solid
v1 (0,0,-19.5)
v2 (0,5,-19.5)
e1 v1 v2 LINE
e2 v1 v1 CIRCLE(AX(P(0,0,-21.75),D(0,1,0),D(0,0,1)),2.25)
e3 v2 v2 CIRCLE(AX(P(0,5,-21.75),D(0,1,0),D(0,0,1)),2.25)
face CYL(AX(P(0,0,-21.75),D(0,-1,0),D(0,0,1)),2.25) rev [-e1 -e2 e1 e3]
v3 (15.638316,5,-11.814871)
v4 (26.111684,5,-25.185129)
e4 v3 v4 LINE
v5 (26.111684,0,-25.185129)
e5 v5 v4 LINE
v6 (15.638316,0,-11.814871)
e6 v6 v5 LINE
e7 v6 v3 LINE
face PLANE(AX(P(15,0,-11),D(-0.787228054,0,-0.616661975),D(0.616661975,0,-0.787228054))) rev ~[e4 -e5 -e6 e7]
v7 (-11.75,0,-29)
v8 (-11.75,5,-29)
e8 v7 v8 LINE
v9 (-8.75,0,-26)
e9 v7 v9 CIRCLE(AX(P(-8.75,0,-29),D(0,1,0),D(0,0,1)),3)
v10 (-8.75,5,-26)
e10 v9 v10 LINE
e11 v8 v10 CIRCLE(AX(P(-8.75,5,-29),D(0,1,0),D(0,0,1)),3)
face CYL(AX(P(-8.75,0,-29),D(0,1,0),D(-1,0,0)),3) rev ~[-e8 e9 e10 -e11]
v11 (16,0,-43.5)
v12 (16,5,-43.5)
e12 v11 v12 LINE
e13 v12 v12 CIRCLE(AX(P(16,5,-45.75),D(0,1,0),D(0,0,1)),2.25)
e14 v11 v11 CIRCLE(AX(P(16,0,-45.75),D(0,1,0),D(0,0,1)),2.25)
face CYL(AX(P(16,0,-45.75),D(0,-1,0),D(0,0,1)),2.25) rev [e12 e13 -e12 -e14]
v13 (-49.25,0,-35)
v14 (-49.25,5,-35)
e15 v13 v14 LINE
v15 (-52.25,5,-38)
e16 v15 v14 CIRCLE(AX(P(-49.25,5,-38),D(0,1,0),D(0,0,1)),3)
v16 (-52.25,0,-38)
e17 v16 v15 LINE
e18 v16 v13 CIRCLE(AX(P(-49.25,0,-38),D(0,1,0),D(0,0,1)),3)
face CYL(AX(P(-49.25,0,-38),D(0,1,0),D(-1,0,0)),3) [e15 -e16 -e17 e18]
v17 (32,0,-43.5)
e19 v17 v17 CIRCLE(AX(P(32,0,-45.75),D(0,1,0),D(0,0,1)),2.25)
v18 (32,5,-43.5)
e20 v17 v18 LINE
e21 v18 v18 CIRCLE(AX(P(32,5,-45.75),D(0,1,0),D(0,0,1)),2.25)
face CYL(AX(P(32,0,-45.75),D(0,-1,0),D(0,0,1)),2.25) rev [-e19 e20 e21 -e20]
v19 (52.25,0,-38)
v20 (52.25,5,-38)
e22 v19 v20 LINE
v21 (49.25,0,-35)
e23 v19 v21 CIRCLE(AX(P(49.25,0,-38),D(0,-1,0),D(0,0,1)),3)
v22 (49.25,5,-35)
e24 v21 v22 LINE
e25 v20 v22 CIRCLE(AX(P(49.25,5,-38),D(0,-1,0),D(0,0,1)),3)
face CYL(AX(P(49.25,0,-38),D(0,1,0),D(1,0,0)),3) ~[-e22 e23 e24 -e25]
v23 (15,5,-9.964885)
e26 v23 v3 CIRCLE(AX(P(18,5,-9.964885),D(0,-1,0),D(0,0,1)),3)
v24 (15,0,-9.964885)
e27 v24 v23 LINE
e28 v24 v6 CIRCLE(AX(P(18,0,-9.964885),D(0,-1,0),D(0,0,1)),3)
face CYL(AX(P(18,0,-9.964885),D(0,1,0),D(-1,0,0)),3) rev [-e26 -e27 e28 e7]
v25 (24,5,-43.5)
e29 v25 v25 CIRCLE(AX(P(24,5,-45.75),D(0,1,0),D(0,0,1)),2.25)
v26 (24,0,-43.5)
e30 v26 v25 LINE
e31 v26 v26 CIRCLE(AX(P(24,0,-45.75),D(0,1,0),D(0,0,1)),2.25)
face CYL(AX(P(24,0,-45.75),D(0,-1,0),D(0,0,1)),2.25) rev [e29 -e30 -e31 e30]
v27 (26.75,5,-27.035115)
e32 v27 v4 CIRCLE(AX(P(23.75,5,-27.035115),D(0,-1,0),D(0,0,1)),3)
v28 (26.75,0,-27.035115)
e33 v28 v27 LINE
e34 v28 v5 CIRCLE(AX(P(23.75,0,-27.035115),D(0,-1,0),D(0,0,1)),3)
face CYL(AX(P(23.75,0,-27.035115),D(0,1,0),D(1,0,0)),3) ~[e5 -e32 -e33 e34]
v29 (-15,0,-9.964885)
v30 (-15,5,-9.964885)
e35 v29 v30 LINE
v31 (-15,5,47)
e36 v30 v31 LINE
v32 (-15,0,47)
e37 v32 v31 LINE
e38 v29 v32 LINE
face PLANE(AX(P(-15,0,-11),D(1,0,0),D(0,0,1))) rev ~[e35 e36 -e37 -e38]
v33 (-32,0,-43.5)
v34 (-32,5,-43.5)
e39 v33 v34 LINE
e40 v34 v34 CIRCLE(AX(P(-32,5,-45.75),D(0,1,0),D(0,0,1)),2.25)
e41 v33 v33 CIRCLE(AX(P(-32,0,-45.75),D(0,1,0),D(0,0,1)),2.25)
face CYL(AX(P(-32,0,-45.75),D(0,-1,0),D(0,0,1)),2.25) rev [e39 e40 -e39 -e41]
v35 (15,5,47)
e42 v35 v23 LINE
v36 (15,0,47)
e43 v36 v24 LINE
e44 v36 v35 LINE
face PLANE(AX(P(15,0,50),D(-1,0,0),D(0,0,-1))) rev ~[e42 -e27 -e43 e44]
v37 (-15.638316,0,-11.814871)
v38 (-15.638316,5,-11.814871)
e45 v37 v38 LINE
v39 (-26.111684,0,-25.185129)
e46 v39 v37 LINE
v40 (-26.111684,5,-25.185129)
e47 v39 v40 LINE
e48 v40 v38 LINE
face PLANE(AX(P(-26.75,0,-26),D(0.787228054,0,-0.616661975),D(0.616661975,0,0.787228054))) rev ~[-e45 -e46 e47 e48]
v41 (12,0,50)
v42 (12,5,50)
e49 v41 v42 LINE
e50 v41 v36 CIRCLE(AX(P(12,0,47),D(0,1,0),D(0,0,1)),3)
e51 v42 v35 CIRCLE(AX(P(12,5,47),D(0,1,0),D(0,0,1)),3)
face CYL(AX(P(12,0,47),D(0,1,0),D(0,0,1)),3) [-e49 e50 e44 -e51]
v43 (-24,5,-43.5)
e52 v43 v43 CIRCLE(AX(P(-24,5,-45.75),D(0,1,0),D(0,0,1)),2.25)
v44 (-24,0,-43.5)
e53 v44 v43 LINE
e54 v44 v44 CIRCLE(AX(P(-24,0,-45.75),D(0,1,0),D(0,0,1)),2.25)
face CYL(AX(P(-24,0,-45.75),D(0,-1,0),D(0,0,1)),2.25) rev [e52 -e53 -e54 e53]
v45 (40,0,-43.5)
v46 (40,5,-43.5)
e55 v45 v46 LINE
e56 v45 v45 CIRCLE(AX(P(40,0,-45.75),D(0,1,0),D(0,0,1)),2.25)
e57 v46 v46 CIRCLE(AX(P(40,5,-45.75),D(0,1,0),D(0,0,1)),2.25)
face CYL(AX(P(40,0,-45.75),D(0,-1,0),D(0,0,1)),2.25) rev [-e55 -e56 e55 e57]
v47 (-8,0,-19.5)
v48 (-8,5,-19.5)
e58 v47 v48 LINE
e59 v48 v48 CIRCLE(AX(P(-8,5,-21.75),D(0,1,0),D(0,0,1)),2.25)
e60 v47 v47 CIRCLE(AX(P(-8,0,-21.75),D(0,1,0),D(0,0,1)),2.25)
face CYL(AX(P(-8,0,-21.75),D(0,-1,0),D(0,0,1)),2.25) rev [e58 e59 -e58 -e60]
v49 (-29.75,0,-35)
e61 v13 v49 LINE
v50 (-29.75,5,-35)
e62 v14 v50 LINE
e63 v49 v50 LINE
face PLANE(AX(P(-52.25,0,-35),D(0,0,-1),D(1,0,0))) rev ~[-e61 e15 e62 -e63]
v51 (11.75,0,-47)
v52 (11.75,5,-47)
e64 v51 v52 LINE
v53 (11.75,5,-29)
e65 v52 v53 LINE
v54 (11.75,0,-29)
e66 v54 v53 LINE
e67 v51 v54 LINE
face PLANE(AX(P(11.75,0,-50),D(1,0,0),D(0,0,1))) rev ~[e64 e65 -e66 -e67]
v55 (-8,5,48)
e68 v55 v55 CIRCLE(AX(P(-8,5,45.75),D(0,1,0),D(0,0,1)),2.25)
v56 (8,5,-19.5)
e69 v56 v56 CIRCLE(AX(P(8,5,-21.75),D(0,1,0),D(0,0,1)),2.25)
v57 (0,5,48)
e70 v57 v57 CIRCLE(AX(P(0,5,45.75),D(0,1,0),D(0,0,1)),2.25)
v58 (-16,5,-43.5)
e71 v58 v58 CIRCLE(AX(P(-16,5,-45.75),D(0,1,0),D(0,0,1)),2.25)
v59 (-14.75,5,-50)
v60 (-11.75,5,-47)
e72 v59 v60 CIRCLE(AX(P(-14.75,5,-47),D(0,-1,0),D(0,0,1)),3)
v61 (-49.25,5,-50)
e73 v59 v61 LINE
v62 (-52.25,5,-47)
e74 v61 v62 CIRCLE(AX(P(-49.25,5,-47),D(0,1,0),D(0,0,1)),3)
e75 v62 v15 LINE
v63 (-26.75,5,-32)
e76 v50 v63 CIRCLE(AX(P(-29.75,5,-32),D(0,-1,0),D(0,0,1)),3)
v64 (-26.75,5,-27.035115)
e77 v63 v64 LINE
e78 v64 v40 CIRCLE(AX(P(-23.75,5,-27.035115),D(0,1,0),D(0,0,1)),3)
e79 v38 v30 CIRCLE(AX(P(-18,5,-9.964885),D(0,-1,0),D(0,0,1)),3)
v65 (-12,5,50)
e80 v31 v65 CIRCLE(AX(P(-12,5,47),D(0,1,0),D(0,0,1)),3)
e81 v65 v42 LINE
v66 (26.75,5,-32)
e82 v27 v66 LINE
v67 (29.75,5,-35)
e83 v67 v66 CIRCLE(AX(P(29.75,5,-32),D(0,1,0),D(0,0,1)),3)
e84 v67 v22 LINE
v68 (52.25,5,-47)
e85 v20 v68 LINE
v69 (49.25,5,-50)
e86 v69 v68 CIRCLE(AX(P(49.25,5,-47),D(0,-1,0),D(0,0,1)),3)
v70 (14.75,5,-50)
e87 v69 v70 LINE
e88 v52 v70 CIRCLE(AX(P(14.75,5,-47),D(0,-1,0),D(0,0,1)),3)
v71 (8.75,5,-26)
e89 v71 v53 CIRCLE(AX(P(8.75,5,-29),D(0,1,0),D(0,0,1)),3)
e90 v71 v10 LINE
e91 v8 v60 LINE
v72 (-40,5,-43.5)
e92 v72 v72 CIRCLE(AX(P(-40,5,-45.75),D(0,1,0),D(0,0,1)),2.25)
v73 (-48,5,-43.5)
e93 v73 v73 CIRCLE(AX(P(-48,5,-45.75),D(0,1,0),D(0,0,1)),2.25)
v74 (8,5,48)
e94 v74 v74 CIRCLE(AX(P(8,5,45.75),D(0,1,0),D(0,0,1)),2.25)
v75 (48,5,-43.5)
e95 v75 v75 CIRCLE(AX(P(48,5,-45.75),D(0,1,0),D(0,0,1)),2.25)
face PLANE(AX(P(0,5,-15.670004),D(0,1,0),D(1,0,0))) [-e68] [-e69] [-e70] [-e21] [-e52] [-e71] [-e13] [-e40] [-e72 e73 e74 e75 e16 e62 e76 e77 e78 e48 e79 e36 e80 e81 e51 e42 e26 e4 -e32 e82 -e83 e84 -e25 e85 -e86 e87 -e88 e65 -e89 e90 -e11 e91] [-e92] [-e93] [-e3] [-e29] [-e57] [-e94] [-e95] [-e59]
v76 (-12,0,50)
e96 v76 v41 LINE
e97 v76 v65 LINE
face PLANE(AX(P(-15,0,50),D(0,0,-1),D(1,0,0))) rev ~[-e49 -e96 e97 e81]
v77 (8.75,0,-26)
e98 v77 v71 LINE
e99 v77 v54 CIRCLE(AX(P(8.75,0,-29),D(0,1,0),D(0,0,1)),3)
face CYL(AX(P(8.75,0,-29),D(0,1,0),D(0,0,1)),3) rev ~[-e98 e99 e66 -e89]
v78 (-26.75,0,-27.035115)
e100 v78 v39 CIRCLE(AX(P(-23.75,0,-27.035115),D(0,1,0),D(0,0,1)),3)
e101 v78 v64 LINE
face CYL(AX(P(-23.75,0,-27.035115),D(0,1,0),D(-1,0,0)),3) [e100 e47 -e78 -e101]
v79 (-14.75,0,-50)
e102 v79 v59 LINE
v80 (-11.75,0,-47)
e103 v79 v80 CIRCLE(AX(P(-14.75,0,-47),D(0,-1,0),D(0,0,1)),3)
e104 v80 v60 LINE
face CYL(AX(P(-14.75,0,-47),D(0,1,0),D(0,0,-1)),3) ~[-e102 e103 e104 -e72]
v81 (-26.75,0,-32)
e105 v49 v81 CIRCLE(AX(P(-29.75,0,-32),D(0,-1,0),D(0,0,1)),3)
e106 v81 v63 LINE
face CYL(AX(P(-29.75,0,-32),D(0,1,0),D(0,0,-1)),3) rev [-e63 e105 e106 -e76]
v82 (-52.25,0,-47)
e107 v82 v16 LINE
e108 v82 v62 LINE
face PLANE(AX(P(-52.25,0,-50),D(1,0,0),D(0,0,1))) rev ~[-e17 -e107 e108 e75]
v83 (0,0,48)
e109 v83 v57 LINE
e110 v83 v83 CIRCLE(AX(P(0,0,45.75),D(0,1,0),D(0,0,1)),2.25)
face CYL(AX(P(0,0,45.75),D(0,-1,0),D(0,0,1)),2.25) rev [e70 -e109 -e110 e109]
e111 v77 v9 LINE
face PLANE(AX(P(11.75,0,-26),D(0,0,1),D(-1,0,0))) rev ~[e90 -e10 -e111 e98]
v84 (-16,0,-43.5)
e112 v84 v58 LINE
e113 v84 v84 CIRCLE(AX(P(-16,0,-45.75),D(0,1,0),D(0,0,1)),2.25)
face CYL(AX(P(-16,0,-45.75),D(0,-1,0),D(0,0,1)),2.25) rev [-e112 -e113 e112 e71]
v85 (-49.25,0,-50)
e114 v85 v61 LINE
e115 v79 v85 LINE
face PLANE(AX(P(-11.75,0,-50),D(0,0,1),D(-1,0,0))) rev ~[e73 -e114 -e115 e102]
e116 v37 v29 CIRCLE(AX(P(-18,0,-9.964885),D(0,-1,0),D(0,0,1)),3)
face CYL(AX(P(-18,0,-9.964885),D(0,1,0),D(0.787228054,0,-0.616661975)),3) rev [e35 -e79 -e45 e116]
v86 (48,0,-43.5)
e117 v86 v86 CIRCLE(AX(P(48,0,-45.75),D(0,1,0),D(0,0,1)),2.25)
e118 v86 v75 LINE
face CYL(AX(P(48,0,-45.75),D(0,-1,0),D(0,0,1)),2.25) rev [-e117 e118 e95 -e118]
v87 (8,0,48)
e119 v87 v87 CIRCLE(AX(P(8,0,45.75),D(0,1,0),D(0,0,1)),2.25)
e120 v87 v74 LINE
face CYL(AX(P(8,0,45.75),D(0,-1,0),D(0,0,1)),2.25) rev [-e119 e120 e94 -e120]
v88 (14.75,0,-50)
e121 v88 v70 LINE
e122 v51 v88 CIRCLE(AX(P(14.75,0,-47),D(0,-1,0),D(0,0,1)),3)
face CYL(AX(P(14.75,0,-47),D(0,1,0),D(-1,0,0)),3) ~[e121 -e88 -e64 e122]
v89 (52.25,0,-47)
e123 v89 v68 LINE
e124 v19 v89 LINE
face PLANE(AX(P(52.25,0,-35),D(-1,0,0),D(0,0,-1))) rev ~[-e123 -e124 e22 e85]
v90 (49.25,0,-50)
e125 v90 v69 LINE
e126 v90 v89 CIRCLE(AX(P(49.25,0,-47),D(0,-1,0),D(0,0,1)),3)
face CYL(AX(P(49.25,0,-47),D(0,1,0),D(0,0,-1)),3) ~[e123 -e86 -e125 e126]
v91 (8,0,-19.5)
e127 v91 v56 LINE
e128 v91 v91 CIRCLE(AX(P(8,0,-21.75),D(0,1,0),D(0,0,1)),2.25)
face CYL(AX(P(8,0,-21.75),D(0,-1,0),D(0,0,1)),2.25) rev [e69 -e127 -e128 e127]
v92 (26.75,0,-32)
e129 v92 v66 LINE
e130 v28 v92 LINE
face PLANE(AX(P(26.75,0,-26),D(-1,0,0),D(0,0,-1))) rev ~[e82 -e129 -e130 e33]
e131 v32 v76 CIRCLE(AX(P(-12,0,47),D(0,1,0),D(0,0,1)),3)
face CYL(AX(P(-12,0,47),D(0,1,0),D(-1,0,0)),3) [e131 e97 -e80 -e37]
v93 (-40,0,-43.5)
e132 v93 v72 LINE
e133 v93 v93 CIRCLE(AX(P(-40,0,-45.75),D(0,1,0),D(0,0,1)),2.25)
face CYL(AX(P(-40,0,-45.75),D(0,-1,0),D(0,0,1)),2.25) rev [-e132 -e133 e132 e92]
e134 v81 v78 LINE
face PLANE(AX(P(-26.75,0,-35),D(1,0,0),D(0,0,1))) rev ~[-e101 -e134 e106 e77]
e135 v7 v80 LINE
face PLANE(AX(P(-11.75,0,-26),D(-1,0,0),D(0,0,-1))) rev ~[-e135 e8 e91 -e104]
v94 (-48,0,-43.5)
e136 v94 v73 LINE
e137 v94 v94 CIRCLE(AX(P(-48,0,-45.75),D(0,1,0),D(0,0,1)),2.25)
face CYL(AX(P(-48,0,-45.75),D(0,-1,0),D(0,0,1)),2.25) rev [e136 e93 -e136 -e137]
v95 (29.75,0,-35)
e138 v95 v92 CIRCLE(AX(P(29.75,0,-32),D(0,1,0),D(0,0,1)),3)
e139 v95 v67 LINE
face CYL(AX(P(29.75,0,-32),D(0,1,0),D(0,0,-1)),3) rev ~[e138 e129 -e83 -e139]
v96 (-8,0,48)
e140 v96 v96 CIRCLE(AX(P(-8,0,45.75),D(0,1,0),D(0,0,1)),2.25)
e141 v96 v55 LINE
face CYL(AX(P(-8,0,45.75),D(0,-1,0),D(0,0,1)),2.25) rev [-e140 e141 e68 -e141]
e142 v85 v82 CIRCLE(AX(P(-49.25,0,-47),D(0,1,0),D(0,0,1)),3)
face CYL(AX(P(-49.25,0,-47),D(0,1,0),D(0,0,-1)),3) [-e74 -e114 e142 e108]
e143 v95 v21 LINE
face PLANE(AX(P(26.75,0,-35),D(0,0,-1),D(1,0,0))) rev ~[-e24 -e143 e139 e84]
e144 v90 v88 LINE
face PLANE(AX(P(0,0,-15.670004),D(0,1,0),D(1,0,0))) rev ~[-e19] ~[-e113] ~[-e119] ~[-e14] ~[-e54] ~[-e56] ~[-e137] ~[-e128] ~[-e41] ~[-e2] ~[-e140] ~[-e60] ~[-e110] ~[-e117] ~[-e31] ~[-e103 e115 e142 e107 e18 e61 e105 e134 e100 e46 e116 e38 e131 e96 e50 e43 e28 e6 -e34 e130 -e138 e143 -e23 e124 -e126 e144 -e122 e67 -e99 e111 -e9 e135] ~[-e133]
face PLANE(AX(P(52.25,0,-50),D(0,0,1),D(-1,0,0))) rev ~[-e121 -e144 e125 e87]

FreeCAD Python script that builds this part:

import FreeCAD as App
import Part
import Sketcher
from FreeCAD import Vector
Q = App.Units.Quantity


def edges_at(feature, points):
    """Names of the edges that pass closest to the given points."""
    edges = feature.Shape.Edges
    near = lambda p: min(range(len(edges)), key=lambda i: edges[i].distToShape(Part.Vertex(*p))[0])
    return sorted({f"Edge{near(p) + 1}" for p in points})


def add_polygon(sketch, points):
    """Adds a closed chain of lines whose ends are joined by coincident constraints."""
    first, n = sketch.GeometryCount, len(points)
    for a, b in zip(points, points[1:] + points[:1]):
        sketch.addGeometry(Part.LineSegment(App.Vector(*a, 0), App.Vector(*b, 0)), False)
    for i in range(n):
        sketch.addConstraint(Sketcher.Constraint("Coincident", first + i, 2, first + (i + 1) % n, 1))

doc = App.newDocument("Part")
body = doc.addObject("PartDesign::Body", "Body")

# Sketch on XZ plane
sketch1 = body.newObject("Sketcher::SketchObject", "Sketch")
sketch1.AttachmentSupport = (doc.getObject("XZ_Plane"), [""])
sketch1.MapMode = "FlatFace"
add_polygon(sketch1, [(-11.8, -50), (-52.2, -50), (-52.2, -35), (-26.8, -35), (-26.8, -26), (-15, -11), (-15, 50), (15, 50), (15, -11), (26.8, -26), (26.8, -35), (52.2, -35), (52.2, -50), (11.8, -50), (11.8, -26), (-11.8, -26)])  # lines 0-15
sketch1.addGeometry(Part.Circle(Vector(-8, 45.8, 0), Vector(0, 0, 1), 2.2), False)  # 16
sketch1.addGeometry(Part.Circle(Vector(0, 45.8, 0), Vector(0, 0, 1), 2.2), False)  # 17
sketch1.addGeometry(Part.Circle(Vector(8, 45.8, 0), Vector(0, 0, 1), 2.2), False)  # 18
sketch1.addGeometry(Part.Circle(Vector(-8, -21.8, 0), Vector(0, 0, 1), 2.2), False)  # 19
sketch1.addGeometry(Part.Circle(Vector(-48, -45.8, 0), Vector(0, 0, 1), 2.2), False)  # 20
sketch1.addGeometry(Part.Circle(Vector(-40, -45.8, 0), Vector(0, 0, 1), 2.2), False)  # 21
sketch1.addGeometry(Part.Circle(Vector(-32, -45.8, 0), Vector(0, 0, 1), 2.2), False)  # 22
sketch1.addGeometry(Part.Circle(Vector(-24, -45.8, 0), Vector(0, 0, 1), 2.2), False)  # 23
sketch1.addGeometry(Part.Circle(Vector(-16, -45.8, 0), Vector(0, 0, 1), 2.2), False)  # 24
sketch1.addGeometry(Part.Circle(Vector(0, -21.8, 0), Vector(0, 0, 1), 2.2), False)  # 25
sketch1.addGeometry(Part.Circle(Vector(8, -21.8, 0), Vector(0, 0, 1), 2.2), False)  # 26
sketch1.addGeometry(Part.Circle(Vector(16, -45.8, 0), Vector(0, 0, 1), 2.2), False)  # 27
sketch1.addGeometry(Part.Circle(Vector(24, -45.8, 0), Vector(0, 0, 1), 2.2), False)  # 28
sketch1.addGeometry(Part.Circle(Vector(32, -45.8, 0), Vector(0, 0, 1), 2.2), False)  # 29
sketch1.addGeometry(Part.Circle(Vector(40, -45.8, 0), Vector(0, 0, 1), 2.2), False)  # 30
sketch1.addGeometry(Part.Circle(Vector(48, -45.8, 0), Vector(0, 0, 1), 2.2), False)  # 31
sketch1.addConstraint([
    Sketcher.Constraint("Horizontal", 0),
    Sketcher.Constraint("Vertical", 1),
    Sketcher.Constraint("Horizontal", 2),
    Sketcher.Constraint("Vertical", 3),
    Sketcher.Constraint("Vertical", 5),
    Sketcher.Constraint("Horizontal", 6),
    Sketcher.Constraint("Vertical", 7),
    Sketcher.Constraint("Vertical", 9),
    Sketcher.Constraint("Horizontal", 10),
    Sketcher.Constraint("Vertical", 11),
    Sketcher.Constraint("Horizontal", 12),
    Sketcher.Constraint("Vertical", 13),
    Sketcher.Constraint("Horizontal", 14),
    Sketcher.Constraint("Vertical", 15),
    Sketcher.Constraint("Equal", 16, 17),
    Sketcher.Constraint("Equal", 17, 18),
    Sketcher.Constraint("Equal", 18, 19),
    Sketcher.Constraint("Equal", 19, 20),
    Sketcher.Constraint("Equal", 20, 21),
    Sketcher.Constraint("Equal", 21, 22),
    Sketcher.Constraint("Equal", 22, 23),
    Sketcher.Constraint("Equal", 23, 24),
    Sketcher.Constraint("Equal", 24, 25),
    Sketcher.Constraint("Equal", 25, 26),
    Sketcher.Constraint("Equal", 26, 27),
    Sketcher.Constraint("Equal", 27, 28),
    Sketcher.Constraint("Equal", 28, 29),
    Sketcher.Constraint("Equal", 29, 30),
    Sketcher.Constraint("Equal", 30, 31),
    Sketcher.Constraint("Symmetric", 16, 3, 18, 3, -2),
    Sketcher.Constraint("Symmetric", 19, 3, 26, 3, -2),
    Sketcher.Constraint("Symmetric", 24, 3, 27, 3, -2),
    Sketcher.Constraint("Symmetric", 23, 3, 28, 3, -2),
    Sketcher.Constraint("Symmetric", 22, 3, 29, 3, -2),
    Sketcher.Constraint("Symmetric", 21, 3, 30, 3, -2),
    Sketcher.Constraint("Symmetric", 20, 3, 31, 3, -2),
    Sketcher.Constraint("Symmetric", 4, 2, 7, 2, -2),
    Sketcher.Constraint("Symmetric", 3, 2, 8, 2, -2),
    Sketcher.Constraint("Symmetric", 1, 2, 10, 2, -2),
    Sketcher.Constraint("Symmetric", 12, 2, 15, 2, -2),
    Sketcher.Constraint("PointOnObject", 17, 3, -2),
    Sketcher.Constraint("PointOnObject", 25, 3, -2),
    Sketcher.Constraint("Horizontal", 16, 3, 17, 3),
    Sketcher.Constraint("Horizontal", 20, 3, 21, 3),
    Sketcher.Constraint("Horizontal", 21, 3, 22, 3),
    Sketcher.Constraint("Horizontal", 22, 3, 23, 3),
    Sketcher.Constraint("Horizontal", 23, 3, 24, 3),
    Sketcher.Constraint("Horizontal", 19, 3, 25, 3),
    Sketcher.Constraint("Horizontal", 8, 2, 13, 2),
    Sketcher.Constraint("Vertical", 16, 3, 19, 3),
    Sketcher.Constraint("Diameter", 16, Q("4.5 mm")),
    Sketcher.Constraint("DistanceX", 6, 1, 6, 2, Q("30 mm")),
    Sketcher.Constraint("DistanceY", 1, 1, 1, 2, Q("15 mm")),
    Sketcher.Constraint("DistanceY", 3, 1, 3, 2, Q("9 mm")),
    Sketcher.Constraint("DistanceY", 5, 1, 5, 2, Q("61 mm")),
    Sketcher.Constraint("DistanceX", 0, 2, 0, 1, Q("40.5 mm")),
    Sketcher.Constraint("DistanceX", 2, 1, 2, 2, Q("25.5 mm")),
    Sketcher.Constraint("DistanceX", 14, 2, 14, 1, Q("23.5 mm")),
    Sketcher.Constraint("DistanceX", 16, 3, -1, 1, Q("8 mm")),
    Sketcher.Constraint("DistanceX", 20, 3, -1, 1, Q("48 mm")),
    Sketcher.Constraint("DistanceX", 21, 3, -1, 1, Q("40 mm")),
    Sketcher.Constraint("DistanceX", 22, 3, -1, 1, Q("32 mm")),
    Sketcher.Constraint("DistanceX", 23, 3, -1, 1, Q("24 mm")),
    Sketcher.Constraint("DistanceX", 24, 3, -1, 1, Q("16 mm")),
    Sketcher.Constraint("DistanceY", 0, 2, -1, 1, Q("50 mm")),
    Sketcher.Constraint("DistanceY", 4, 2, -1, 1, Q("11 mm")),
    Sketcher.Constraint("DistanceY", 20, 3, 19, 3, Q("24 mm")),
    Sketcher.Constraint("DistanceY", 19, 3, 16, 3, Q("67.5 mm")),
    Sketcher.Constraint("DistanceY", -1, 1, 16, 3, Q("45.75 mm")),
])
pad1 = body.newObject("PartDesign::Pad", "Pad")
pad1.Profile = sketch1
pad1.Length = 5
pad1.Reversed = True
doc.recompute()

fillet = body.newObject("PartDesign::Fillet", "Fillet")
fillet.Base = (pad1, edges_at(pad1, [
    (15, 2.5, -11),
    (15, 2.5, 50),
    (-15, 2.5, 50),
    (-15, 2.5, -11),
    (-26.75, 2.5, -26),
    (-26.75, 2.5, -35),
    (-52.25, 2.5, -35),
    (-52.25, 2.5, -50),
    (-11.75, 2.5, -50),
    (-11.75, 2.5, -26),
    (11.75, 2.5, -26),
    (11.75, 2.5, -50),
    (52.25, 2.5, -50),
    (52.25, 2.5, -35),
    (26.75, 2.5, -35),
    (26.75, 2.5, -26),
]))
fillet.Radius = 3

doc.recompute()
